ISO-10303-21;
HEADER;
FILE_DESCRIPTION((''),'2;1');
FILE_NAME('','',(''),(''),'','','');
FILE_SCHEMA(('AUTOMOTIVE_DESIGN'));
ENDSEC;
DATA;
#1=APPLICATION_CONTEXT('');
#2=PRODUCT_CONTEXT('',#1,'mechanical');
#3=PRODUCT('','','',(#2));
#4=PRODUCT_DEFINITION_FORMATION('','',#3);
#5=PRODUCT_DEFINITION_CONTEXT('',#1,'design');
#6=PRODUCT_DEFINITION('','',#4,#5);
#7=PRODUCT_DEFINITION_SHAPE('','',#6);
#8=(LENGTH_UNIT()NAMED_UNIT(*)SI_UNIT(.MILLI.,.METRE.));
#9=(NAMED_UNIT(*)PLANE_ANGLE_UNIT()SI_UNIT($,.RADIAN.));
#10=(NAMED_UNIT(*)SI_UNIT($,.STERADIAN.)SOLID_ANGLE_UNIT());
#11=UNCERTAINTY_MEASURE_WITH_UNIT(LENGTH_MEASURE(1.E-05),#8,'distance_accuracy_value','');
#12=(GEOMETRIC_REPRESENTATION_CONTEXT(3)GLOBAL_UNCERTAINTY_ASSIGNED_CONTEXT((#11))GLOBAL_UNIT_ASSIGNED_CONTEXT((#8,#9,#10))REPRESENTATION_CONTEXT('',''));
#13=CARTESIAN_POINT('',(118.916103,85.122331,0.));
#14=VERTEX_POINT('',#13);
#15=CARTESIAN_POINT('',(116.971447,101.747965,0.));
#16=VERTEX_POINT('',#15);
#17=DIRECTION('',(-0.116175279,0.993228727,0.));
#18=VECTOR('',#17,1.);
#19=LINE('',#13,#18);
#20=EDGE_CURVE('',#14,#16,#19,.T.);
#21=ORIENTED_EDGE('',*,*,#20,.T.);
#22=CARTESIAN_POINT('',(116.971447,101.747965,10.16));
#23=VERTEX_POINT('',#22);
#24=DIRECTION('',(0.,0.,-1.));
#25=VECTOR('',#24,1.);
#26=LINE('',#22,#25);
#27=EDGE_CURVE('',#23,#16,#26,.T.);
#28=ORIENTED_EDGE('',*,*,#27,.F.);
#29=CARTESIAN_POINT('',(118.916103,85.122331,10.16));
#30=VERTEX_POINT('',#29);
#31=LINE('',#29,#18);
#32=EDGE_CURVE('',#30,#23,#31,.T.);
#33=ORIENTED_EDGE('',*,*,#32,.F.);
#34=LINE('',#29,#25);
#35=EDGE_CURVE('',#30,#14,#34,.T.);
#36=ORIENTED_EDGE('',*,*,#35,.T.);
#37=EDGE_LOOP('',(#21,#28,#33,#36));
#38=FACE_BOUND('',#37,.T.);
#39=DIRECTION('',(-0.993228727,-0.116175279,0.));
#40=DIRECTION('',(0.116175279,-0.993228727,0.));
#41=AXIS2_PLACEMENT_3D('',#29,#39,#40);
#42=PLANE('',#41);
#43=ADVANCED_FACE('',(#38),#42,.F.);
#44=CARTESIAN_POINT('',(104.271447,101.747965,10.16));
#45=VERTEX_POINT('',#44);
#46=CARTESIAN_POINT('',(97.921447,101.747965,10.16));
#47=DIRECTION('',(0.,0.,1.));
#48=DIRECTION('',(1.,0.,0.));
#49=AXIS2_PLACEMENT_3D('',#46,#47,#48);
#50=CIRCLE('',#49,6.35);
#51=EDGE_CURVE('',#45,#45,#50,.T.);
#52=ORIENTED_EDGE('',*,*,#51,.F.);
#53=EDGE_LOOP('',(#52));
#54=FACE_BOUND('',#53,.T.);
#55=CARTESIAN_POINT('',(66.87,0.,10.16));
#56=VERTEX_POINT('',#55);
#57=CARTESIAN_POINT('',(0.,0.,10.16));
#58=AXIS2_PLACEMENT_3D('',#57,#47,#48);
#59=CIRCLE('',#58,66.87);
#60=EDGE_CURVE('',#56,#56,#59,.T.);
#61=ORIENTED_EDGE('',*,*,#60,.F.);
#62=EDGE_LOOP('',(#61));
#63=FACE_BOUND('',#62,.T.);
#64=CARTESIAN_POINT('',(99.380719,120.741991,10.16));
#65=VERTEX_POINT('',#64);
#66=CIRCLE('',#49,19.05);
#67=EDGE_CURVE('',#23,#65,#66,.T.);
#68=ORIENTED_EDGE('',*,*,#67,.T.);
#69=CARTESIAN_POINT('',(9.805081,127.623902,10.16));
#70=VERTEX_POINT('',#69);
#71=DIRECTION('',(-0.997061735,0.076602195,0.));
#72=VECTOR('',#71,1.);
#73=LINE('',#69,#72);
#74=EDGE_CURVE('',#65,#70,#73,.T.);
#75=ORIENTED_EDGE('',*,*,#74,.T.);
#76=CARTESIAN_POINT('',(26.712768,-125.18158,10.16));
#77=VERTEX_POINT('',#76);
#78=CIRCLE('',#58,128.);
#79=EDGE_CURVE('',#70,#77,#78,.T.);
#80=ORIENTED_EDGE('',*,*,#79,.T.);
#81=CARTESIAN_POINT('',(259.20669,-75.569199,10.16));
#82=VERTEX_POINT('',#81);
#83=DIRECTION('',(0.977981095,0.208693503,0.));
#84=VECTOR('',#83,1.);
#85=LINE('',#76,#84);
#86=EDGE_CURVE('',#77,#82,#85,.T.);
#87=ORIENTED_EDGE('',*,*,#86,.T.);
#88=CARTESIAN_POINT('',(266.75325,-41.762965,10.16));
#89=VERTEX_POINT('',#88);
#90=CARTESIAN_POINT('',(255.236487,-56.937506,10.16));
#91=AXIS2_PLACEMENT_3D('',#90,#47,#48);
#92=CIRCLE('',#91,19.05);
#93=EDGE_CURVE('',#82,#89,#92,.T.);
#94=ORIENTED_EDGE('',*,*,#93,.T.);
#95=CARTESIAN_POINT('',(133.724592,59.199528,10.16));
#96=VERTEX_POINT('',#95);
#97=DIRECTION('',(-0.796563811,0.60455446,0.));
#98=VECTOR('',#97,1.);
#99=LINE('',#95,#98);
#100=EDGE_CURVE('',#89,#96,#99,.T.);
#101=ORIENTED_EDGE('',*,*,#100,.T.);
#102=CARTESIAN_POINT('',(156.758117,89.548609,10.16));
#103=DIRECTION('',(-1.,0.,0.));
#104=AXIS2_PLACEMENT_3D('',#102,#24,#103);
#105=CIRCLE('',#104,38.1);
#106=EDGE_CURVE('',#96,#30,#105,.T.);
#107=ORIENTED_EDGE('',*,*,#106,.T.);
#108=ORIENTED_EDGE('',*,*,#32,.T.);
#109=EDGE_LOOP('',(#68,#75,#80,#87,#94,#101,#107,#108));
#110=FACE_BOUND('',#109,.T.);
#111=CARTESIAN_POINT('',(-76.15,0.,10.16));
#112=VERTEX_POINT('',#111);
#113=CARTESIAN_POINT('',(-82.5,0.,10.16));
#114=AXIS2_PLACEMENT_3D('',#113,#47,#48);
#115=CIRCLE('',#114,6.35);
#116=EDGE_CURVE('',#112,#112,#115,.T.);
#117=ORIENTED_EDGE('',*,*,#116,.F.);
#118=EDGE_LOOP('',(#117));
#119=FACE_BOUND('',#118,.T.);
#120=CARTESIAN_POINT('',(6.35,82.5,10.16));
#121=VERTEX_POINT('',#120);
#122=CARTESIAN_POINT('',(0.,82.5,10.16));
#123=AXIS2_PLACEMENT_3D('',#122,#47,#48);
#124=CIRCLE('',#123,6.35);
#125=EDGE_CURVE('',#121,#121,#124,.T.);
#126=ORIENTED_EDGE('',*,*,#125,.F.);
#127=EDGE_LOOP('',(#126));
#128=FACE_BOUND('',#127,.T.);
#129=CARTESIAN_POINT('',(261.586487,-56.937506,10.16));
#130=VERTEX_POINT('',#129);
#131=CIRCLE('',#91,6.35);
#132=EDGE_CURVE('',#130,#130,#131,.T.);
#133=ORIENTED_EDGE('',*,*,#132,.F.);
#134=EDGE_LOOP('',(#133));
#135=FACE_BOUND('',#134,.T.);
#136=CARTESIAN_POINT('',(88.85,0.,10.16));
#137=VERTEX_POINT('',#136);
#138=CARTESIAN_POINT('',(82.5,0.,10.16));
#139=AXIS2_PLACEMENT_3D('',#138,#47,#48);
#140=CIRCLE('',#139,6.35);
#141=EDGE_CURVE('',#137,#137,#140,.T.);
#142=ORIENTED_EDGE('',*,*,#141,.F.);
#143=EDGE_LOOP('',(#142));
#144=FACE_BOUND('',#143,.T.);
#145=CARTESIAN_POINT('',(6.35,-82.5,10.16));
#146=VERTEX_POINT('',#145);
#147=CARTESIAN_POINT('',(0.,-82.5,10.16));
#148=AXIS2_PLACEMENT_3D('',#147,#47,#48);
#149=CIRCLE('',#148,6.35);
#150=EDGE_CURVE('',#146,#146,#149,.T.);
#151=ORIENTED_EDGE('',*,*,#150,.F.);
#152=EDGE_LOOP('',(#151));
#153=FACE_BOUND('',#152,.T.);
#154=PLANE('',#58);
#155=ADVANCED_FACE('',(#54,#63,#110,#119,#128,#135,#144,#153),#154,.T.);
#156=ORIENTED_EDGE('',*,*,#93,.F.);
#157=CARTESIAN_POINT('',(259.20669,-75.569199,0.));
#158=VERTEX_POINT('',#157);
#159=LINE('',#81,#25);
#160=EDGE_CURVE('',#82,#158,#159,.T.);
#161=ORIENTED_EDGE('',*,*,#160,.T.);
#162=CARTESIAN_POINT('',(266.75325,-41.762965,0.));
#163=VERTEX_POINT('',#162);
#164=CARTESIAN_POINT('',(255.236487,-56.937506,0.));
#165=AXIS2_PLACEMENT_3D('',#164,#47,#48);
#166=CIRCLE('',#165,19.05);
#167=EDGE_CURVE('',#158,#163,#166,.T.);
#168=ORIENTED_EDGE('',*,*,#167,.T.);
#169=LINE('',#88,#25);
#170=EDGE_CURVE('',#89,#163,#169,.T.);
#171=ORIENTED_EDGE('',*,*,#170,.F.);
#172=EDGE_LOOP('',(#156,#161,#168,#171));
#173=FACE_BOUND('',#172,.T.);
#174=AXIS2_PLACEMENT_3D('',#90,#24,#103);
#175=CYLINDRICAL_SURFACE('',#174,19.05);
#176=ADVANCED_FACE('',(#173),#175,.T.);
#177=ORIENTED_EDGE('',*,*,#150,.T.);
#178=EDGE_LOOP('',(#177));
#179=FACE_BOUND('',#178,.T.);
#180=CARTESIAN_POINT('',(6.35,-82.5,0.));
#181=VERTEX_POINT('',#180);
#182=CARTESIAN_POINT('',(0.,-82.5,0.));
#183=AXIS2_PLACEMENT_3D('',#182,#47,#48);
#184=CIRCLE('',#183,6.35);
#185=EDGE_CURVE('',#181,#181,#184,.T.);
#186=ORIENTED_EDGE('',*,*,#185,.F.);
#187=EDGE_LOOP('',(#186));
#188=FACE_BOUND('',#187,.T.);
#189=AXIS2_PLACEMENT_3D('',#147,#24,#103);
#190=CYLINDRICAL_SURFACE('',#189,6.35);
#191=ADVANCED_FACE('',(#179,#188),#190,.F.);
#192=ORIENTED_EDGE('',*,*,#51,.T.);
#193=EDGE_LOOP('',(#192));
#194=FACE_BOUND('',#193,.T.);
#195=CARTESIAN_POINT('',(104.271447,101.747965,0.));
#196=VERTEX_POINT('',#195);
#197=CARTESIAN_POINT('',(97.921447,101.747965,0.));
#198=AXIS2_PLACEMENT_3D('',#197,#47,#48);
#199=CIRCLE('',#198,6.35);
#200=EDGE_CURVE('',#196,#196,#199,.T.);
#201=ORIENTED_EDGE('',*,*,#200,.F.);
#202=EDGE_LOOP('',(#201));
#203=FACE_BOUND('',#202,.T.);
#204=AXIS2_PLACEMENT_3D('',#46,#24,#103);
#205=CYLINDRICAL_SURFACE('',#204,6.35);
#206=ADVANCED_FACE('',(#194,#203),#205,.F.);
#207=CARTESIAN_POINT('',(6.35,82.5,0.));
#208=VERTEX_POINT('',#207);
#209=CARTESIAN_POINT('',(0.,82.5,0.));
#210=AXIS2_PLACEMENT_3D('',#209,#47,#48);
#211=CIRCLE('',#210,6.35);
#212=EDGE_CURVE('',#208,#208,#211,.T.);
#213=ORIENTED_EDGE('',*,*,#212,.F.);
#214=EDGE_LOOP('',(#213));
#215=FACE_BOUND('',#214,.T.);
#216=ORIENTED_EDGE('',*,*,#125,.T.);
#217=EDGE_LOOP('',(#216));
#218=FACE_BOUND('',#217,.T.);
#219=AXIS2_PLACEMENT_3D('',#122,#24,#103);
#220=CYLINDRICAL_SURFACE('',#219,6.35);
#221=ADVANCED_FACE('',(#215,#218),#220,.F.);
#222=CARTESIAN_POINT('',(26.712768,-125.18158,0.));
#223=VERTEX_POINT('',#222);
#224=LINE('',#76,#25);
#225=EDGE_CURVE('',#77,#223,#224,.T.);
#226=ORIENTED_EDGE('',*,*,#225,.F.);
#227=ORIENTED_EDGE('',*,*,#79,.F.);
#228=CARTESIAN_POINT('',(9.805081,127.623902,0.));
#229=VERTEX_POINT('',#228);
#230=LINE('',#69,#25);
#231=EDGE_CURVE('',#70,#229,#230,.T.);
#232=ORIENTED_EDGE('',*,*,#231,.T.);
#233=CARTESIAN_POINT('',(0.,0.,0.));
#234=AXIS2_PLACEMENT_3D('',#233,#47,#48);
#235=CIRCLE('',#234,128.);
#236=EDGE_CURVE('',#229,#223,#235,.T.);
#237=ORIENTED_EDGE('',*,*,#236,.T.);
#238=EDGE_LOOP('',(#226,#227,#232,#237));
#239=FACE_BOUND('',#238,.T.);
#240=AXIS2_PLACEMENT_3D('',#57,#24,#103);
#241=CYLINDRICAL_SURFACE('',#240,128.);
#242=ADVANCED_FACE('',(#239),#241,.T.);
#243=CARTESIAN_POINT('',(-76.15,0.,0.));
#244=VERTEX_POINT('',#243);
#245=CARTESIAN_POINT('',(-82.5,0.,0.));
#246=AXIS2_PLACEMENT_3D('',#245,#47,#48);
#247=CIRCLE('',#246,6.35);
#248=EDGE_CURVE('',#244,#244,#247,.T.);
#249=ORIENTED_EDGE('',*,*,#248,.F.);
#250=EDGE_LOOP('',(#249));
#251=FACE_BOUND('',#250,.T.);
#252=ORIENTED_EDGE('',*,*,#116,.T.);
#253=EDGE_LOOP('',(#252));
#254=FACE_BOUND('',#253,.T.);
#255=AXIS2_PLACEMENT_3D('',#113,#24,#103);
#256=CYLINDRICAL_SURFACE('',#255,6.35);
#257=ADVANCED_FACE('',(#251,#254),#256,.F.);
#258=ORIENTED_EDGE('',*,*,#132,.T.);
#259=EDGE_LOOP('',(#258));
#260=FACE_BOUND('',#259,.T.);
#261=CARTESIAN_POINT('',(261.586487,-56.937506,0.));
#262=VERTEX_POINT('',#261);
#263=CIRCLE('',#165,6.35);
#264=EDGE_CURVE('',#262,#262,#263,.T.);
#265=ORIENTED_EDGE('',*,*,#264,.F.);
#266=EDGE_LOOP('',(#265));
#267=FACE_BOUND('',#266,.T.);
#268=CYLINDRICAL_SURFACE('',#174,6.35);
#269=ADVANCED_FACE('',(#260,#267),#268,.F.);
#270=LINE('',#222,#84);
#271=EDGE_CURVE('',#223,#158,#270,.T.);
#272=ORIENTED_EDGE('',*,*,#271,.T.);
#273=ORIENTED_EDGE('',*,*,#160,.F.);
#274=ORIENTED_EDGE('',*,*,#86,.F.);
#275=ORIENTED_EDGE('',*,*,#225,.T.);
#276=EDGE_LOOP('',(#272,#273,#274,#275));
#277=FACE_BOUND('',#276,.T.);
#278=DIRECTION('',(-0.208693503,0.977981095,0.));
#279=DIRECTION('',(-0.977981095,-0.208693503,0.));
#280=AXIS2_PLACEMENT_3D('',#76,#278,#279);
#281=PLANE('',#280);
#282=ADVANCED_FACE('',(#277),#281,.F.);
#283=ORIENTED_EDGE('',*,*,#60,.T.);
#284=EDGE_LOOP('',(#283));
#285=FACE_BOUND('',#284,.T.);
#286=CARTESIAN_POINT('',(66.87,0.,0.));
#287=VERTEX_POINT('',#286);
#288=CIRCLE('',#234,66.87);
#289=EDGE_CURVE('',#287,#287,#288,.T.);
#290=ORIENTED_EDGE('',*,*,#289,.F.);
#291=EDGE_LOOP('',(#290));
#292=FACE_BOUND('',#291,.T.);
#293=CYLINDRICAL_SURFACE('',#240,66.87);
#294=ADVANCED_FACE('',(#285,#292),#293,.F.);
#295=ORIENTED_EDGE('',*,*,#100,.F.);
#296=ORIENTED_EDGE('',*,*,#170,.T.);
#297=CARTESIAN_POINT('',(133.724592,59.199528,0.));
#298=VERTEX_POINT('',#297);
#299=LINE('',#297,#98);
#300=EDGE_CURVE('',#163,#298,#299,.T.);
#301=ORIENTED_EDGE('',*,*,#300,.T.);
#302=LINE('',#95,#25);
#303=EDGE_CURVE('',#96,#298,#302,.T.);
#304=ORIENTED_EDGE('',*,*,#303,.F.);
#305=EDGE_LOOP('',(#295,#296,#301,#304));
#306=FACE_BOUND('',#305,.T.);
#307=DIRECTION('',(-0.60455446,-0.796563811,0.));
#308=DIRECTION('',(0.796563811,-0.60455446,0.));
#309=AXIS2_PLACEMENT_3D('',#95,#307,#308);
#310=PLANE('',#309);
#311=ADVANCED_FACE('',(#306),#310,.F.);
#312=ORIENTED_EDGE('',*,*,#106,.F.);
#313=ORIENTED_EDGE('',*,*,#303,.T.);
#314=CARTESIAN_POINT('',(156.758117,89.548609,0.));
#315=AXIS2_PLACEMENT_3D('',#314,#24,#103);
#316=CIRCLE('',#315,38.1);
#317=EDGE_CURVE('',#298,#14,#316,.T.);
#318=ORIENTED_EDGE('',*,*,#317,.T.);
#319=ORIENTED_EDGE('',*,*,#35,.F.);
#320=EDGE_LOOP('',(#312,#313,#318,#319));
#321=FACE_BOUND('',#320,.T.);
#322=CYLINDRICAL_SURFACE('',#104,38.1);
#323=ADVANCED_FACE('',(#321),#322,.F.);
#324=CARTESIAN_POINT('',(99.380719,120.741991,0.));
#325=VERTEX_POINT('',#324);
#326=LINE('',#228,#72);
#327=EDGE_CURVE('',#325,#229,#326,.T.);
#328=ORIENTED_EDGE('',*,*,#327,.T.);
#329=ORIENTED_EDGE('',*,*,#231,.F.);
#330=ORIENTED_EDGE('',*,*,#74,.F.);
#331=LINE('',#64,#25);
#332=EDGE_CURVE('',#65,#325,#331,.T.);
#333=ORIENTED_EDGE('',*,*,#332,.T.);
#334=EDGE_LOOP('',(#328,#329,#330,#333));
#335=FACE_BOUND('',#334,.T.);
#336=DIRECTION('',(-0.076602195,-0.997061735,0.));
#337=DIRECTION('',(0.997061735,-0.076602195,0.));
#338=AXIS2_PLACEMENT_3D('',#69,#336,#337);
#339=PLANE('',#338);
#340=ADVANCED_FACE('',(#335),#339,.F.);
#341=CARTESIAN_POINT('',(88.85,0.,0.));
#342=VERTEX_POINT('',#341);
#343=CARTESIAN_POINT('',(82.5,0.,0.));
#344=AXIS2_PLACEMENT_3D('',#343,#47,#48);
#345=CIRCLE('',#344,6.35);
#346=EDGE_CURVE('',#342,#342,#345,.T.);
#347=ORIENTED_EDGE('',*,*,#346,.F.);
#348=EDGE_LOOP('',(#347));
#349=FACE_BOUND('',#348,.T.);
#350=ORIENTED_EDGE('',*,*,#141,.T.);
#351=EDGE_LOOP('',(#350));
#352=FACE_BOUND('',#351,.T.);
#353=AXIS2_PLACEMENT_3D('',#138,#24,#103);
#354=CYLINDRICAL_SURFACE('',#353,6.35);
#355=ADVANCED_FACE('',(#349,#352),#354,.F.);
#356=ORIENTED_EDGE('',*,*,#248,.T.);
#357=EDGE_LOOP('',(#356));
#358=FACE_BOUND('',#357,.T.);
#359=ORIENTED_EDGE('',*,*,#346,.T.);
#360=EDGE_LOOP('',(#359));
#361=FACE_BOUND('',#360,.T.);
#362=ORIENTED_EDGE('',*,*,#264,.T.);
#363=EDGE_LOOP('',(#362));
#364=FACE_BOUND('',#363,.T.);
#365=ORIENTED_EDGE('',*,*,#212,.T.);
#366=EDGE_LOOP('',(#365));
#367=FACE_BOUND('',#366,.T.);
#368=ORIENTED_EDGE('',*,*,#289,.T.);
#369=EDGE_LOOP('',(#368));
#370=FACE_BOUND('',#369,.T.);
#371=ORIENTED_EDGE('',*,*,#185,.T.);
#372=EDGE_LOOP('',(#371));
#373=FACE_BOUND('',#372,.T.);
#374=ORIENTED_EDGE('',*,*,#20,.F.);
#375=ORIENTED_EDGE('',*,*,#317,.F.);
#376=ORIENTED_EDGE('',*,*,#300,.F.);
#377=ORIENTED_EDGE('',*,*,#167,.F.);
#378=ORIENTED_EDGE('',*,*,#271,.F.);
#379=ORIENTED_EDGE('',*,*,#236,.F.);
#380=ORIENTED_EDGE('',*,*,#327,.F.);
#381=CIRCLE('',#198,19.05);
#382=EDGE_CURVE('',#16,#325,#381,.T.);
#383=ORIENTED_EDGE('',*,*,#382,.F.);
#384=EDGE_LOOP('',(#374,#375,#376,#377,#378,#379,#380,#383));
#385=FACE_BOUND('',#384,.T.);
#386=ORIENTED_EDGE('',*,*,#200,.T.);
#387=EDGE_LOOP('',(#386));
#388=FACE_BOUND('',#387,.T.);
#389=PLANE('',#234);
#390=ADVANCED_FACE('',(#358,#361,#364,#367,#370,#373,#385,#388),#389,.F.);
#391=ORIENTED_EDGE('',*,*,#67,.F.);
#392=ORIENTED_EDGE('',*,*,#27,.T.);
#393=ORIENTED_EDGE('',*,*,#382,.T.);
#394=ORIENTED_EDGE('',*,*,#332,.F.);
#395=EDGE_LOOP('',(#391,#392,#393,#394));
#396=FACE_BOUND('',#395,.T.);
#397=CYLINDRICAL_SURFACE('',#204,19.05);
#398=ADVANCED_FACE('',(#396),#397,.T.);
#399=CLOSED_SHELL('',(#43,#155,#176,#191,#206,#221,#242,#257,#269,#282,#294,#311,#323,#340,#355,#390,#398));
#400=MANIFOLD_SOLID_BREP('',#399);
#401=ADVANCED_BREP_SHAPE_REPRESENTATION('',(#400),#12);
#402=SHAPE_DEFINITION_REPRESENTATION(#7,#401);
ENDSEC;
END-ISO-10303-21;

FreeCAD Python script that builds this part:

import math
import FreeCAD as App
import Part
import Sketcher
from FreeCAD import Vector
Q = App.Units.Quantity

doc = App.newDocument("Part")
body = doc.addObject("PartDesign::Body", "Body")

# Sketch on XY plane
sketch1 = body.newObject("Sketcher::SketchObject", "Sketch")
sketch1.AttachmentSupport = (doc.getObject("XY_Plane"), [""])
sketch1.MapMode = "FlatFace"
sketch1.addGeometry(Part.LineSegment(Vector(26.712768, -125.18158, 0), Vector(259.20669, -75.569199, 0)), False)
sketch1.addGeometry(Part.ArcOfCircle(Part.Circle(Vector(255.236487, -56.937506, 0), Vector(0, 0, 1), 19.05), math.radians(-77.970834), math.radians(52.803212)), False)
sketch1.addGeometry(Part.LineSegment(Vector(266.75325, -41.762965, 0), Vector(133.724592, 59.199528, 0)), False)
sketch1.addGeometry(Part.ArcOfCircle(Part.Circle(Vector(156.758117, 89.548609, 0), Vector(0, 0, 1), 38.1), math.radians(-173.328582), math.radians(-127.196788)), False)
sketch1.addGeometry(Part.LineSegment(Vector(118.916103, 85.122331, 0), Vector(116.971447, 101.747965, 0)), False)
sketch1.addGeometry(Part.ArcOfCircle(Part.Circle(Vector(97.921447, 101.747965, 0), Vector(0, 0, 1), 19.05), math.radians(0), math.radians(85.606714)), False)
sketch1.addGeometry(Part.LineSegment(Vector(99.380719, 120.741991, 0), Vector(9.805081, 127.623902, 0)), False)
sketch1.addGeometry(Part.ArcOfCircle(Part.Circle(Vector(0, 0, 0), Vector(0, 0, 1), 128), math.radians(85.606714), math.radians(282.045799)), False)
sketch1.addGeometry(Part.Circle(Vector(0, -82.5, 0), Vector(0, 0, 1), 6.35), False)
sketch1.addGeometry(Part.Circle(Vector(-82.5, 0, 0), Vector(0, 0, 1), 6.35), False)
sketch1.addGeometry(Part.Circle(Vector(0, 0, 0), Vector(0, 0, 1), 66.87), False)
sketch1.addGeometry(Part.Circle(Vector(82.5, 0, 0), Vector(0, 0, 1), 6.35), False)
sketch1.addGeometry(Part.Circle(Vector(255.236487, -56.937506, 0), Vector(0, 0, 1), 6.35), False)
sketch1.addGeometry(Part.Circle(Vector(0, 82.5, 0), Vector(0, 0, 1), 6.35), False)
sketch1.addGeometry(Part.Circle(Vector(97.921447, 101.747965, 0), Vector(0, 0, 1), 6.35), False)
sketch1.addConstraint(Sketcher.Constraint("Coincident", 0, 2, 1, 1))
sketch1.addConstraint(Sketcher.Constraint("Coincident", 1, 2, 2, 1))
sketch1.addConstraint(Sketcher.Constraint("Coincident", 2, 2, 3, 2))
sketch1.addConstraint(Sketcher.Constraint("Coincident", 3, 1, 4, 1))
sketch1.addConstraint(Sketcher.Constraint("Coincident", 4, 2, 5, 1))
sketch1.addConstraint(Sketcher.Constraint("Coincident", 5, 2, 6, 1))
sketch1.addConstraint(Sketcher.Constraint("Coincident", 6, 2, 7, 1))
sketch1.addConstraint(Sketcher.Constraint("Coincident", 7, 2, 0, 1))
sketch1.addConstraint(Sketcher.Constraint("Coincident", 7, 3, -1, 1))
sketch1.addConstraint(Sketcher.Constraint("Coincident", 10, 3, -1, 1))
sketch1.addConstraint(Sketcher.Constraint("Coincident", 12, 3, 1, 3))
sketch1.addConstraint(Sketcher.Constraint("Coincident", 14, 3, 5, 3))
sketch1.addConstraint(Sketcher.Constraint("PointOnObject", 8, 3, -2))
sketch1.addConstraint(Sketcher.Constraint("PointOnObject", 9, 3, -1))
sketch1.addConstraint(Sketcher.Constraint("PointOnObject", 11, 3, -1))
sketch1.addConstraint(Sketcher.Constraint("PointOnObject", 13, 3, -2))
sketch1.addConstraint(Sketcher.Constraint("Diameter", 8, Q("0.5 in")))
sketch1.addConstraint(Sketcher.Constraint("Diameter", 9, Q("0.5 in")))
sketch1.addConstraint(Sketcher.Constraint("Diameter", 11, Q("0.5 in")))
sketch1.addConstraint(Sketcher.Constraint("Diameter", 12, Q("0.5 in")))
sketch1.addConstraint(Sketcher.Constraint("Diameter", 13, Q("0.5 in")))
sketch1.addConstraint(Sketcher.Constraint("Diameter", 14, Q("0.5 in")))
sketch1.addConstraint(Sketcher.Constraint("Radius", 3, Q("1.5 in")))
sketch1.addConstraint(Sketcher.Constraint("Radius", 1, Q("0.75 in")))
sketch1.addConstraint(Sketcher.Constraint("Radius", 5, Q("0.75 in")))
sketch1.addConstraint(Sketcher.Constraint("Diameter", 10, 133.74))
sketch1.addConstraint(Sketcher.Constraint("Radius", 7, 128.0))
sketch1.addConstraint(Sketcher.Constraint("DistanceX", 6, 2, 5, 2, Q("3.5265999 in")))
sketch1.addConstraint(Sketcher.Constraint("DistanceY", 8, 3, -1, 1, 82.5))
sketch1.addConstraint(Sketcher.Constraint("DistanceX", 9, 3, -1, 1, 82.5))
sketch1.addConstraint(Sketcher.Constraint("DistanceX", -1, 1, 11, 3, 82.5))
sketch1.addConstraint(Sketcher.Constraint("DistanceY", -1, 1, 13, 3, 82.5))
sketch1.addConstraint(Sketcher.Constraint("DistanceY", 0, 2, -1, 1, 75.569199))
sketch1.addConstraint(Sketcher.Constraint("DistanceX", 5, 2, 3, 3, 57.377398))
sketch1.addConstraint(Sketcher.Constraint("Distance", 0, 237.728441))
sketch1.addConstraint(Sketcher.Constraint("Distance", 2, 167.003139))
sketch1.addConstraint(Sketcher.Constraint("Distance", 4, 16.738978))
sketch1.addConstraint(Sketcher.Constraint("Distance", 6, 89.839611))
sketch1.addConstraint(Sketcher.Constraint("DistanceY", -1, 1, 3, 3, 89.548609))
sketch1.addConstraint(Sketcher.Constraint("DistanceX", -1, 1, 0, 2, 259.20669))
sketch1.addConstraint(Sketcher.Constraint("DistanceX", -1, 1, 1, 2, 266.75325))
sketch1.addConstraint(Sketcher.Constraint("DistanceY", -1, 1, 3, 1, 85.122331))
sketch1.addConstraint(Sketcher.Constraint("DistanceX", -1, 1, 5, 2, 99.380719))
sketch1.addConstraint(Sketcher.Constraint("DistanceX", 3, 3, 1, 3, 98.47837))
sketch1.addConstraint(Sketcher.Constraint("DistanceX", 5, 3, 3, 3, 58.83667))
pad1 = body.newObject("PartDesign::Pad", "Pad")
pad1.Profile = sketch1
pad1.Length = Q("0.4 in")

doc.recompute()
